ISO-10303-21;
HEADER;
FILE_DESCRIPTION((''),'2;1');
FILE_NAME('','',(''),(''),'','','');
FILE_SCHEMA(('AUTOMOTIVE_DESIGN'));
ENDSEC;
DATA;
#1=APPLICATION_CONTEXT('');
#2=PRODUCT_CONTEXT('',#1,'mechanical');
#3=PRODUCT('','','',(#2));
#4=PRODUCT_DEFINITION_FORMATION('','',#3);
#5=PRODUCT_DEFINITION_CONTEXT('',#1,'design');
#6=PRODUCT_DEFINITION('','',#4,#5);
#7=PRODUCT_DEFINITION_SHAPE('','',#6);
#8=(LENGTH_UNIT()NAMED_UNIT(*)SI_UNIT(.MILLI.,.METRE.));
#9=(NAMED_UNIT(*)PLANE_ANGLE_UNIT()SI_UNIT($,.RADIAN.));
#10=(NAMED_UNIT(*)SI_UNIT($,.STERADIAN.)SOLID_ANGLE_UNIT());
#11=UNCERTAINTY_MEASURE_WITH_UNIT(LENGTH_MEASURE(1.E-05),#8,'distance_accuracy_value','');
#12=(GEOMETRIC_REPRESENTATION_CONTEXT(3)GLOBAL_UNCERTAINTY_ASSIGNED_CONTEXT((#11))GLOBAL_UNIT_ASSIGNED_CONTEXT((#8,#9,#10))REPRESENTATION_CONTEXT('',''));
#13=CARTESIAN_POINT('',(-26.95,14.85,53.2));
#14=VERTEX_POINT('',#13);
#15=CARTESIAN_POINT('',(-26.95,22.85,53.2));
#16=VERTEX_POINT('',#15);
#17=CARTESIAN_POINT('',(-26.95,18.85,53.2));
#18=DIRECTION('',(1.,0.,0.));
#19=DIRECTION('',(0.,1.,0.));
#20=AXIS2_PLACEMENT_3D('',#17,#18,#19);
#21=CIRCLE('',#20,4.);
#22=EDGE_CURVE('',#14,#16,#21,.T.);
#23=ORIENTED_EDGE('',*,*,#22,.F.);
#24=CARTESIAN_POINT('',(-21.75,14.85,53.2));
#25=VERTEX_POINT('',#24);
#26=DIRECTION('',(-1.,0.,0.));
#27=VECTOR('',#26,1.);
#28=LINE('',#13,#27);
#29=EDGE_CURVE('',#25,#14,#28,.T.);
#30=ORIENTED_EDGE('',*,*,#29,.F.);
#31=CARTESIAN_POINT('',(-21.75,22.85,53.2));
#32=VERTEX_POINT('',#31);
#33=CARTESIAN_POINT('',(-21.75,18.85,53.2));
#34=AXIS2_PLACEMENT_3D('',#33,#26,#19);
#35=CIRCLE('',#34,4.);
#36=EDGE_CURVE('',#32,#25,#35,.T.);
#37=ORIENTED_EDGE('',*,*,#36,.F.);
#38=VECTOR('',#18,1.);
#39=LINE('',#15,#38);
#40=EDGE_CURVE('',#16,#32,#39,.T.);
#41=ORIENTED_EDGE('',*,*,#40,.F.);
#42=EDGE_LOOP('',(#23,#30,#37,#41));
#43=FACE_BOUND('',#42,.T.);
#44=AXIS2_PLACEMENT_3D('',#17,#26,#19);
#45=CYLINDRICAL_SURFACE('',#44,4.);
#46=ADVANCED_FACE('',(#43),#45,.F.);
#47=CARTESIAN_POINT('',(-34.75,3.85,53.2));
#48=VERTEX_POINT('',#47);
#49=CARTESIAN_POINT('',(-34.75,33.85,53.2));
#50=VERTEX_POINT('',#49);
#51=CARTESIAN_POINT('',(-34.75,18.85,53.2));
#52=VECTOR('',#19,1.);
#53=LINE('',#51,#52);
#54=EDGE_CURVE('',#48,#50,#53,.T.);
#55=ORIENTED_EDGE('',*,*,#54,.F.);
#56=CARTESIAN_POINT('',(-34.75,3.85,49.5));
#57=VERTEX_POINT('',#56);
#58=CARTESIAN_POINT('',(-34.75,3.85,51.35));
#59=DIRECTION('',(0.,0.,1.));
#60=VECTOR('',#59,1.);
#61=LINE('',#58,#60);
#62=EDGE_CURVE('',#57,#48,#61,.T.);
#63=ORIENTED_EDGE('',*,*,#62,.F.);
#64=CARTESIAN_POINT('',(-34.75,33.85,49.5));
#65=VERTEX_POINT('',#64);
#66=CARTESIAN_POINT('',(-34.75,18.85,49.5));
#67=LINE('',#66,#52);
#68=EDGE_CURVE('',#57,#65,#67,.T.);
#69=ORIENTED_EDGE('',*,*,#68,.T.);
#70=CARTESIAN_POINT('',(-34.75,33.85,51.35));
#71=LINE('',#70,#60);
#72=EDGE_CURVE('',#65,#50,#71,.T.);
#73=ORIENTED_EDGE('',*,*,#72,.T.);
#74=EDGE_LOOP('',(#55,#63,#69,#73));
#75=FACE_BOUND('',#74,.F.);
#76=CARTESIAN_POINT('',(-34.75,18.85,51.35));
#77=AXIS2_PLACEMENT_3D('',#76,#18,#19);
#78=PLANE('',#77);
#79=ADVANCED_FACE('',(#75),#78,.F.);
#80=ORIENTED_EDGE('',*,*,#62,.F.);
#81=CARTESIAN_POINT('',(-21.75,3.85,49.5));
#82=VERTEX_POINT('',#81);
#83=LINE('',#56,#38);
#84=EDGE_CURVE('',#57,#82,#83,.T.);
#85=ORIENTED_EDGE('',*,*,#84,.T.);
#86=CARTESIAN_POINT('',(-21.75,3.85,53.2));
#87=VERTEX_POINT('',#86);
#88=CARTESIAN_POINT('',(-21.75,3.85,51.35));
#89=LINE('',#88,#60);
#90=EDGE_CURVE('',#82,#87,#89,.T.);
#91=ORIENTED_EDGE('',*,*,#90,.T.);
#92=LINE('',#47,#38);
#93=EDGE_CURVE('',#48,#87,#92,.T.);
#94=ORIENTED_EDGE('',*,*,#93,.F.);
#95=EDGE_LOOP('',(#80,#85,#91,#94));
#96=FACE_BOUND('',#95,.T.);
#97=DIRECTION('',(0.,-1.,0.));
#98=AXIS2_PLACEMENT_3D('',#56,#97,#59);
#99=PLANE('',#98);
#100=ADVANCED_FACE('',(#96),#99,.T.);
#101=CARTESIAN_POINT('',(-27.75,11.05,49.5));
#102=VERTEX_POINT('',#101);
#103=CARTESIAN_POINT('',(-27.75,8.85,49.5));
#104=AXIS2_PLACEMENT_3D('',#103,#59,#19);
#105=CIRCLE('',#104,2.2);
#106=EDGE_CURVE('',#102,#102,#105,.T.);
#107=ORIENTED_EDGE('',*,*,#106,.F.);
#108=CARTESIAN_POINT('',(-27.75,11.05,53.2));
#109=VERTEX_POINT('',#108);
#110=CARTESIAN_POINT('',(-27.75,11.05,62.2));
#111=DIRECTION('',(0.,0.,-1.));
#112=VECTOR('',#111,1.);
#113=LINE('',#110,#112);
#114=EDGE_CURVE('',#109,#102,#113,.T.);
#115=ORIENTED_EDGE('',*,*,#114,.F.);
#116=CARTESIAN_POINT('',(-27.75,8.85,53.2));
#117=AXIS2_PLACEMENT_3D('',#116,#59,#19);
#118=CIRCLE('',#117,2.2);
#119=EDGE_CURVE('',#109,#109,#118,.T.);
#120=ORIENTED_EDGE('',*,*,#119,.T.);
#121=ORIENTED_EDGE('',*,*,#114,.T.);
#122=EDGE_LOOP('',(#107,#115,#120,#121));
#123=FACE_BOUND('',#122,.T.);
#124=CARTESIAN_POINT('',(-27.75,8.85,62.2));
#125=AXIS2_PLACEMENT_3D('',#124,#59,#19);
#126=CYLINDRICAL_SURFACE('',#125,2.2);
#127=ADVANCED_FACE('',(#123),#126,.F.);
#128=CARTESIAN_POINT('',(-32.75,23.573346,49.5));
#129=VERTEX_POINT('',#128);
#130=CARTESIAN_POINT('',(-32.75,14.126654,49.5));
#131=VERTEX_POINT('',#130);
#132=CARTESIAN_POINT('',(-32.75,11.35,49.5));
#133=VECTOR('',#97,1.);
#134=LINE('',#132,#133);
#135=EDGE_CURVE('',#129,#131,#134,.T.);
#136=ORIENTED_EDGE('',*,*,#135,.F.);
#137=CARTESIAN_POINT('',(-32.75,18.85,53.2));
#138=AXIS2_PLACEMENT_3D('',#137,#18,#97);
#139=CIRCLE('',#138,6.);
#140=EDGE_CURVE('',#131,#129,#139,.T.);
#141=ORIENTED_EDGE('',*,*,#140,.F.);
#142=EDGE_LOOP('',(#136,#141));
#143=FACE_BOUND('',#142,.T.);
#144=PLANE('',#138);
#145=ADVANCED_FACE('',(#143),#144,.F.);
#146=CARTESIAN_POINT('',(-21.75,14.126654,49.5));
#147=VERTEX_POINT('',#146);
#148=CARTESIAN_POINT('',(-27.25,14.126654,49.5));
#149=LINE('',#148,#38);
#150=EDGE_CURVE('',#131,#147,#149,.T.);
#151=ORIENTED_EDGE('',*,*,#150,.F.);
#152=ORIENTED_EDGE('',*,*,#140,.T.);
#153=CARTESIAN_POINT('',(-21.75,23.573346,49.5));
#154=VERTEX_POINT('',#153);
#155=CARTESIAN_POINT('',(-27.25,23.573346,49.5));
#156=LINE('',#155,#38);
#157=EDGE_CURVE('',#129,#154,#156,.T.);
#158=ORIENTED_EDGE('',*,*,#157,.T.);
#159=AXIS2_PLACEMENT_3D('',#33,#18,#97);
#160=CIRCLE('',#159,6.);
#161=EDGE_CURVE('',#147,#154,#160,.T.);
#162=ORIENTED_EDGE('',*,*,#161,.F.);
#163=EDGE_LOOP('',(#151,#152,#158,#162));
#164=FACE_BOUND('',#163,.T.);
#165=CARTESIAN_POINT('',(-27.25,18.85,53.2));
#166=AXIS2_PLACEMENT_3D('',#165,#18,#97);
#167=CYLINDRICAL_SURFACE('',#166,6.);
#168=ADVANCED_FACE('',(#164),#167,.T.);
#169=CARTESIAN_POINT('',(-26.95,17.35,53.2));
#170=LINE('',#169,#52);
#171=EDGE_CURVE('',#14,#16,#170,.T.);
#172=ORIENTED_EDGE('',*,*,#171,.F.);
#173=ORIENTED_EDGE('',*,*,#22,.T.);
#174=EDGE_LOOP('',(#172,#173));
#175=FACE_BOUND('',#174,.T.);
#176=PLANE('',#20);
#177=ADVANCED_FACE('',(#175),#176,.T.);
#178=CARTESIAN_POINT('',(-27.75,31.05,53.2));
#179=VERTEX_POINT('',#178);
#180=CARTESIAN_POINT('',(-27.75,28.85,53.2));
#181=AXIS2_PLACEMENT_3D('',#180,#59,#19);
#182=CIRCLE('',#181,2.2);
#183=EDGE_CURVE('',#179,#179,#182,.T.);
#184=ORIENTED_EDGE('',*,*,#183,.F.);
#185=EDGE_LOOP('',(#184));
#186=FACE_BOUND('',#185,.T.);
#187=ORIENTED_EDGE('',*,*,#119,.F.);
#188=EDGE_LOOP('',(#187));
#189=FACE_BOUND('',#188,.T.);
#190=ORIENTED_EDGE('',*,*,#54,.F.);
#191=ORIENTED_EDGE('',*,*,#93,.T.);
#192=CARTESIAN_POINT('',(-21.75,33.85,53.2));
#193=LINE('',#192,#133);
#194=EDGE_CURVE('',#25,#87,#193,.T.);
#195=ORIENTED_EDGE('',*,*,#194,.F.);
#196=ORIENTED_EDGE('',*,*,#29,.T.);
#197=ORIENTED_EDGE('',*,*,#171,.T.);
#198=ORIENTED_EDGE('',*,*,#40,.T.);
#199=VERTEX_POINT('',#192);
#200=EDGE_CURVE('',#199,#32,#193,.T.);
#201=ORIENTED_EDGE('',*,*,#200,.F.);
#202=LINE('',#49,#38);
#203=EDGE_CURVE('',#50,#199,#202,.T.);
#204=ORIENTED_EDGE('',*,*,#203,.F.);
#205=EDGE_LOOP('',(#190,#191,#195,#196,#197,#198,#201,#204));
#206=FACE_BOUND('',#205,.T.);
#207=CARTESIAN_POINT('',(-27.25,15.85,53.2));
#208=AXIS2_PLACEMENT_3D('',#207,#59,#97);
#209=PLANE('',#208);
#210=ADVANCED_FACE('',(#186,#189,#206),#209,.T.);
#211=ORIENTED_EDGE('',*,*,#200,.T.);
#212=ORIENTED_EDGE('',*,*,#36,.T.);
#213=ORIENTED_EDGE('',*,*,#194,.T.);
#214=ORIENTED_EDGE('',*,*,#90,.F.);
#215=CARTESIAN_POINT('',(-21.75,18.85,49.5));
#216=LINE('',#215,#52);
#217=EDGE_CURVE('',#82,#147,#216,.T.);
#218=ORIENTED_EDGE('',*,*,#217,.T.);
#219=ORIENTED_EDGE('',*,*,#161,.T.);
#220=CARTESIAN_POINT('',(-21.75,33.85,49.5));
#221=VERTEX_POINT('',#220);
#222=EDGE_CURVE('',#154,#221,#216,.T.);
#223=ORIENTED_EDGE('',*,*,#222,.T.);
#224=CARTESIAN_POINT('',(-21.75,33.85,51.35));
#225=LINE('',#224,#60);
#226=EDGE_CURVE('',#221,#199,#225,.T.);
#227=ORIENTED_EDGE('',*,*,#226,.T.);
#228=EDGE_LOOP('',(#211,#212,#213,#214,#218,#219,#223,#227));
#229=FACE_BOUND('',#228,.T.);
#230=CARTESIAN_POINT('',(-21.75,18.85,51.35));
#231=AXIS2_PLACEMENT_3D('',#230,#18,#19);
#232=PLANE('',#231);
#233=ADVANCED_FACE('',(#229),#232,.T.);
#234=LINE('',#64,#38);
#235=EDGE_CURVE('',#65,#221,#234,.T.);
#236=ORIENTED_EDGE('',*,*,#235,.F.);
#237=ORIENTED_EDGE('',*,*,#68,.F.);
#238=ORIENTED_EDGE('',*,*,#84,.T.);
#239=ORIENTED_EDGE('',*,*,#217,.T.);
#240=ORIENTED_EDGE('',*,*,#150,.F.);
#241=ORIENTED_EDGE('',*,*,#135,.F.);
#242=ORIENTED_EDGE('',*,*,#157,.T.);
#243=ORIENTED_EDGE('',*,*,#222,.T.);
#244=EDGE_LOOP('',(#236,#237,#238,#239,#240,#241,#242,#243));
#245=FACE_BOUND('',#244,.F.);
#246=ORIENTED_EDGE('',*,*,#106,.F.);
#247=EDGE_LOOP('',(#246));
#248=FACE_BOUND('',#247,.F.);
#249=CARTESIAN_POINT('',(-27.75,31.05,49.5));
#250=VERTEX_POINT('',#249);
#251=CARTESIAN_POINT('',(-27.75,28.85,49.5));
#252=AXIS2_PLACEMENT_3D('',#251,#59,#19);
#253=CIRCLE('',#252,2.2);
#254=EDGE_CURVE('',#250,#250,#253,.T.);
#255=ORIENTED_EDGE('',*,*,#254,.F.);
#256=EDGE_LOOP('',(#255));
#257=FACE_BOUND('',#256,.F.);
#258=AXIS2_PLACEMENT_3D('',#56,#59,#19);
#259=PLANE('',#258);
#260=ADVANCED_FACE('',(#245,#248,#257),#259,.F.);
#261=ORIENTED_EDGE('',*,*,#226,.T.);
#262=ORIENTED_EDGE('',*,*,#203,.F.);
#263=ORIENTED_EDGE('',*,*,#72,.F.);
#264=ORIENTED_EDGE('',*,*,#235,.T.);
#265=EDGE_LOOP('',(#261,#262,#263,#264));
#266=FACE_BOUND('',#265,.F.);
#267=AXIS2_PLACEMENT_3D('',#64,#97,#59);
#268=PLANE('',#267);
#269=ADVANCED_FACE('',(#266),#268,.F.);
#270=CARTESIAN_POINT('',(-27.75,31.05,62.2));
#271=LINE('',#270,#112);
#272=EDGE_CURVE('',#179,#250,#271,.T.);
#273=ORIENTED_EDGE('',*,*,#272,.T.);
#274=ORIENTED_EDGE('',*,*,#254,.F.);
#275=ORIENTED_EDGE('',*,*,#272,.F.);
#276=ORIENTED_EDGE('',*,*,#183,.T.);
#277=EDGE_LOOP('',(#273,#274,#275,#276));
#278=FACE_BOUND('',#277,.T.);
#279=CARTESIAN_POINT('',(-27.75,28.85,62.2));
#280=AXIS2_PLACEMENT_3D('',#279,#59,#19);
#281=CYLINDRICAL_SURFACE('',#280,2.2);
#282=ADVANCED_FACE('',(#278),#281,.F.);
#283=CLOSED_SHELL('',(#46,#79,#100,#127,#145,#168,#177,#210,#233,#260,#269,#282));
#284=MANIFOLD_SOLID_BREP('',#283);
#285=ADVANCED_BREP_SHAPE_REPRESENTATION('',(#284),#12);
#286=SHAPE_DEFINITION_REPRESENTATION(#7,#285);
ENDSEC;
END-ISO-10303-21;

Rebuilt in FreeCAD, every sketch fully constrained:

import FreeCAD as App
import Part
import Sketcher
from FreeCAD import Vector


def add_polygon(sketch, points):
    """Adds a closed chain of lines whose ends are joined by coincident constraints."""
    first, n = sketch.GeometryCount, len(points)
    for a, b in zip(points, points[1:] + points[:1]):
        sketch.addGeometry(Part.LineSegment(App.Vector(*a, 0), App.Vector(*b, 0)), False)
    for i in range(n):
        sketch.addConstraint(Sketcher.Constraint("Coincident", first + i, 2, first + (i + 1) % n, 1))

doc = App.newDocument("Part")
body = doc.addObject("PartDesign::Body", "Body")

# Sketch on XZ plane
sketch1 = body.newObject("Sketcher::SketchObject", "Sketch")
sketch1.AttachmentSupport = (doc.getObject("XZ_Plane"), [""])
sketch1.MapMode = "FlatFace"
sketch1.AttachmentOffset = App.Placement(Vector(0, 0, -9), App.Rotation())
sketch1.addGeometry(Part.Circle(Vector(-10, 5, 0), Vector(0, 0, 1), 2.2), False)
sketch1.addConstraint(Sketcher.Constraint("Diameter", 0, 4.4))
sketch1.addConstraint(Sketcher.Constraint("DistanceX", 0, 3, -1, 1, 10.0))
sketch1.addConstraint(Sketcher.Constraint("DistanceY", -1, 1, 0, 3, 5.0))
pad1 = body.newObject("PartDesign::Pad", "Pad")
pad1.Profile = sketch1
pad1.Length = 20
body2 = doc.addObject("PartDesign::Body", "Body001")

# Sketch on XZ plane
sketch2 = body2.newObject("Sketcher::SketchObject", "Sketch001")
sketch2.AttachmentSupport = (doc.getObject("XZ_Plane001"), [""])
sketch2.MapMode = "FlatFace"
sketch2.AttachmentOffset = App.Placement(Vector(0, 0, -9), App.Rotation())
sketch2.addGeometry(Part.Circle(Vector(10, 5, 0), Vector(0, 0, 1), 2.2), False)
sketch2.addConstraint(Sketcher.Constraint("Diameter", 0, 4.4))
sketch2.addConstraint(Sketcher.Constraint("DistanceX", -1, 1, 0, 3, 10.0))
sketch2.addConstraint(Sketcher.Constraint("DistanceY", -1, 1, 0, 3, 5.0))
pad2 = body2.newObject("PartDesign::Pad", "Pad001")
pad2.Profile = sketch2
pad2.Length = 20
body3 = doc.addObject("PartDesign::Body", "Body002")

# Sketch on XY plane
sketch3 = body3.newObject("Sketcher::SketchObject", "Sketch002")
sketch3.AttachmentSupport = (doc.getObject("XY_Plane002"), [""])
sketch3.MapMode = "FlatFace"
sketch3.AttachmentOffset = App.Placement(Vector(0, 0, 5.8), App.Rotation())
sketch3.addGeometry(Part.Circle(Vector(0, 0, 0), Vector(0, 0, 1), 4), False)
sketch3.addConstraint(Sketcher.Constraint("Coincident", 0, 3, -1, 1))
sketch3.addConstraint(Sketcher.Constraint("Diameter", 0, 8.0))
pad3 = body3.newObject("PartDesign::Pad", "Pad002")
pad3.Profile = sketch3
pad3.Length = 6.5
body4 = doc.addObject("PartDesign::Body", "Body003")

# Sketch on XZ plane
sketch4 = body4.newObject("Sketcher::SketchObject", "Sketch003")
sketch4.AttachmentSupport = (doc.getObject("XZ_Plane003"), [""])
sketch4.MapMode = "FlatFace"
add_polygon(sketch4, [(0, 11), (0, 0), (-6, 0), (-6, 11)])  # lines 0-3
sketch4.addConstraint(Sketcher.Constraint("Vertical", 0))
sketch4.addConstraint(Sketcher.Constraint("Horizontal", 1))
sketch4.addConstraint(Sketcher.Constraint("Vertical", 2))
sketch4.addConstraint(Sketcher.Constraint("Horizontal", 3))
sketch4.addConstraint(Sketcher.Constraint("Coincident", 0, 2, -1, 1))
sketch4.addConstraint(Sketcher.Constraint("DistanceX", 1, 2, 1, 1, 6.0))
sketch4.addConstraint(Sketcher.Constraint("DistanceY", 0, 2, 0, 1, 11.0))
revolution = body4.newObject("PartDesign::Revolution", "Revolution")
revolution.Profile = sketch4
revolution.ReferenceAxis = (sketch4, ["V_Axis"])
revolution.Angle = 180
body5 = doc.addObject("PartDesign::Body", "Body004")

# Sketch on XY plane
sketch5 = body5.newObject("Sketcher::SketchObject", "Sketch004")
sketch5.AttachmentSupport = (doc.getObject("XY_Plane004"), [""])
sketch5.MapMode = "FlatFace"
sketch5.AttachmentOffset = App.Placement(Vector(0, 0, -2), App.Rotation())
add_polygon(sketch5, [(-15, 0), (-15, -3.7), (15, -3.7), (15, 0)])  # lines 0-3
sketch5.addConstraint(Sketcher.Constraint("Vertical", 0))
sketch5.addConstraint(Sketcher.Constraint("Horizontal", 1))
sketch5.addConstraint(Sketcher.Constraint("Vertical", 2))
sketch5.addConstraint(Sketcher.Constraint("Horizontal", 3))
sketch5.addConstraint(Sketcher.Constraint("Symmetric", 2, 2, 3, 2, -1, 1))
sketch5.addConstraint(Sketcher.Constraint("DistanceX", 1, 1, 1, 2, 30.0))
sketch5.addConstraint(Sketcher.Constraint("DistanceY", 0, 2, 0, 1, 3.7))
pad4 = body5.newObject("PartDesign::Pad", "Pad003")
pad4.Profile = sketch5
pad4.Length = 13
doc.recompute()

boolean = body5.newObject("PartDesign::Boolean", "Boolean")
boolean.Type = "Fuse"
boolean.addObjects([body4])
doc.recompute()

boolean2 = body5.newObject("PartDesign::Boolean", "Boolean001")
boolean2.Type = "Cut"
boolean2.addObjects([body3])
doc.recompute()

boolean3 = body5.newObject("PartDesign::Boolean", "Boolean002")
boolean3.Type = "Cut"
boolean3.addObjects([body2])
doc.recompute()

boolean4 = body5.newObject("PartDesign::Boolean", "Boolean003")
boolean4.Type = "Cut"
boolean4.addObjects([body])
body6 = doc.addObject("PartDesign::Body", "Body005")
doc.recompute()

body5.Placement = App.Placement(Vector(0, 0, 0), App.Rotation(Vector(1, 0, 0), 90))
boolean5 = body6.newObject("PartDesign::Boolean", "Boolean004")
boolean5.Type = "Fuse"
boolean5.addObjects([body5])
body7 = doc.addObject("PartDesign::Body", "Body006")
doc.recompute()

body6.Placement = App.Placement(Vector(-32.75, 18.85, 53.2), App.Rotation(Vector(0, 0, 1), 90))
boolean6 = body7.newObject("PartDesign::Boolean", "Boolean005")
boolean6.Type = "Fuse"
boolean6.addObjects([body6])

doc.recompute()
